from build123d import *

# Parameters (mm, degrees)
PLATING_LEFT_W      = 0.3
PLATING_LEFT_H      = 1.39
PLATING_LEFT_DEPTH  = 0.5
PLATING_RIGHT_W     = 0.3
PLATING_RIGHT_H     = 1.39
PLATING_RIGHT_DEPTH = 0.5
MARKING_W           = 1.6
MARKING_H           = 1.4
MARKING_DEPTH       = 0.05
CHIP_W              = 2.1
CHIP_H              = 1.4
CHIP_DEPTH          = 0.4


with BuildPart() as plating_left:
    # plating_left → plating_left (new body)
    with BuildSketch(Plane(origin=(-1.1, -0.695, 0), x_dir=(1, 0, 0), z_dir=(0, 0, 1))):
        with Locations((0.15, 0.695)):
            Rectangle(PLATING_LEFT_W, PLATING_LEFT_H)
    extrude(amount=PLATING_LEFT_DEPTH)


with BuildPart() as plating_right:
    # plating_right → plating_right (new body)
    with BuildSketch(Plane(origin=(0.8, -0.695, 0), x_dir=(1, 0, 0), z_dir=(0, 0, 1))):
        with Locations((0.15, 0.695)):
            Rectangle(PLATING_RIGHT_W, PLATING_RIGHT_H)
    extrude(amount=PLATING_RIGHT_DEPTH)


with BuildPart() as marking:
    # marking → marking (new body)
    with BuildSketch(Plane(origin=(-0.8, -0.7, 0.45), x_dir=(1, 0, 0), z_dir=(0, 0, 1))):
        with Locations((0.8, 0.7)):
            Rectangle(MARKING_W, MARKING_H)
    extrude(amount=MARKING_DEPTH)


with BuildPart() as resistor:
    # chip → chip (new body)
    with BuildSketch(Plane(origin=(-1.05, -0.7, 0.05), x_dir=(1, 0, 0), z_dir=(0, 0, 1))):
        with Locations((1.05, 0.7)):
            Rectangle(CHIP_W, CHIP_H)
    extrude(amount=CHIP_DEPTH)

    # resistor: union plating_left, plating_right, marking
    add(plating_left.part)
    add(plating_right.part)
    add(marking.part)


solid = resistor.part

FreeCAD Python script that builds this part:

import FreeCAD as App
import Part
import Sketcher


def add_polygon(sketch, points):
    """Adds a closed chain of lines whose ends are joined by coincident constraints."""
    first, n = sketch.GeometryCount, len(points)
    for a, b in zip(points, points[1:] + points[:1]):
        sketch.addGeometry(Part.LineSegment(App.Vector(*a, 0), App.Vector(*b, 0)), False)
    for i in range(n):
        sketch.addConstraint(Sketcher.Constraint("Coincident", first + i, 2, first + (i + 1) % n, 1))

doc = App.newDocument("Part")
body = doc.addObject("PartDesign::Body", "Body")

# Sketch on XY plane
sketch1 = doc.addObject("Sketcher::SketchObject", "Sketch")
body.addObject(sketch1)
sketch1.AttachmentSupport = (doc.XY_Plane, [""])
sketch1.MapMode = "FlatFace"
add_polygon(sketch1, [(-1.1, 0.69), (-1.1, -0.69), (-0.8, -0.69), (-0.8, 0.69)])  # lines 0-3
sketch1.addConstraint([
    Sketcher.Constraint("Vertical", 0),
    Sketcher.Constraint("Horizontal", 1),
    Sketcher.Constraint("Vertical", 2),
    Sketcher.Constraint("Horizontal", 3),
    Sketcher.Constraint("DistanceX", 1, 1, 1, 2, 0.3),
    Sketcher.Constraint("DistanceY", 0, 2, 0, 1, 1.39),
    Sketcher.Constraint("DistanceX", 0, 2, -1, 1, 1.1),
    Sketcher.Constraint("DistanceY", 0, 2, -1, 1, 0.695),
])
pad1 = doc.addObject("PartDesign::Pad", "Pad")
body.addObject(pad1)
pad1.Profile = sketch1
pad1.Length = 0.5
body2 = doc.addObject("PartDesign::Body", "Body001")

# Sketch on XY plane
sketch2 = doc.addObject("Sketcher::SketchObject", "Sketch001")
body2.addObject(sketch2)
sketch2.AttachmentSupport = (doc.getObject("XY_Plane001"), [""])
sketch2.MapMode = "FlatFace"
add_polygon(sketch2, [(0.8, 0.69), (0.8, -0.69), (1.1, -0.69), (1.1, 0.69)])  # lines 0-3
sketch2.addConstraint([
    Sketcher.Constraint("Vertical", 0),
    Sketcher.Constraint("Horizontal", 1),
    Sketcher.Constraint("Vertical", 2),
    Sketcher.Constraint("Horizontal", 3),
    Sketcher.Constraint("DistanceX", 1, 1, 1, 2, 0.3),
    Sketcher.Constraint("DistanceY", 0, 2, 0, 1, 1.39),
    Sketcher.Constraint("DistanceX", -1, 1, 0, 2, 0.8),
    Sketcher.Constraint("DistanceY", 0, 2, -1, 1, 0.695),
])
pad2 = doc.addObject("PartDesign::Pad", "Pad001")
body2.addObject(pad2)
pad2.Profile = sketch2
pad2.Length = 0.5
body3 = doc.addObject("PartDesign::Body", "Body002")

# Sketch on XY plane
sketch3 = doc.addObject("Sketcher::SketchObject", "Sketch002")
body3.addObject(sketch3)
sketch3.AttachmentSupport = (doc.getObject("XY_Plane002"), [""])
sketch3.MapMode = "FlatFace"
sketch3.AttachmentOffset = App.Placement(App.Vector(0, 0, 0.45), App.Rotation())
add_polygon(sketch3, [(-0.8, 0.7), (-0.8, -0.7), (0.8, -0.7), (0.8, 0.7)])  # lines 0-3
sketch3.addConstraint([
    Sketcher.Constraint("Vertical", 0),
    Sketcher.Constraint("Horizontal", 1),
    Sketcher.Constraint("Vertical", 2),
    Sketcher.Constraint("Horizontal", 3),
    Sketcher.Constraint("Symmetric", 0, 2, 2, 2, -1, 1),
    Sketcher.Constraint("DistanceX", 1, 1, 1, 2, 1.6),
    Sketcher.Constraint("DistanceY", 0, 2, 0, 1, 1.4),
])
pad3 = doc.addObject("PartDesign::Pad", "Pad002")
body3.addObject(pad3)
pad3.Profile = sketch3
pad3.Length = 0.05
body4 = doc.addObject("PartDesign::Body", "Body003")

# Sketch on XY plane
sketch4 = doc.addObject("Sketcher::SketchObject", "Sketch003")
body4.addObject(sketch4)
sketch4.AttachmentSupport = (doc.getObject("XY_Plane003"), [""])
sketch4.MapMode = "FlatFace"
sketch4.AttachmentOffset = App.Placement(App.Vector(0, 0, 0.05), App.Rotation())
add_polygon(sketch4, [(-1.1, 0.7), (-1.1, -0.7), (1.1, -0.7), (1.1, 0.7)])  # lines 0-3
sketch4.addConstraint([
    Sketcher.Constraint("Vertical", 0),
    Sketcher.Constraint("Horizontal", 1),
    Sketcher.Constraint("Vertical", 2),
    Sketcher.Constraint("Horizontal", 3),
    Sketcher.Constraint("Symmetric", 0, 2, 2, 2, -1, 1),
    Sketcher.Constraint("DistanceX", 1, 1, 1, 2, 2.1),
    Sketcher.Constraint("DistanceY", 0, 2, 0, 1, 1.4),
])
pad4 = doc.addObject("PartDesign::Pad", "Pad003")
body4.addObject(pad4)
pad4.Profile = sketch4
pad4.Length = 0.4
doc.recompute()

boolean = doc.addObject("PartDesign::Boolean", "Boolean")
body4.addObject(boolean)
boolean.Type = "Fuse"
boolean.addObjects([body])
doc.recompute()

boolean2 = doc.addObject("PartDesign::Boolean", "Boolean001")
body4.addObject(boolean2)
boolean2.Type = "Fuse"
boolean2.addObjects([body2])
doc.recompute()

boolean3 = doc.addObject("PartDesign::Boolean", "Boolean002")
body4.addObject(boolean3)
boolean3.Type = "Fuse"
boolean3.addObjects([body3])

doc.recompute()
